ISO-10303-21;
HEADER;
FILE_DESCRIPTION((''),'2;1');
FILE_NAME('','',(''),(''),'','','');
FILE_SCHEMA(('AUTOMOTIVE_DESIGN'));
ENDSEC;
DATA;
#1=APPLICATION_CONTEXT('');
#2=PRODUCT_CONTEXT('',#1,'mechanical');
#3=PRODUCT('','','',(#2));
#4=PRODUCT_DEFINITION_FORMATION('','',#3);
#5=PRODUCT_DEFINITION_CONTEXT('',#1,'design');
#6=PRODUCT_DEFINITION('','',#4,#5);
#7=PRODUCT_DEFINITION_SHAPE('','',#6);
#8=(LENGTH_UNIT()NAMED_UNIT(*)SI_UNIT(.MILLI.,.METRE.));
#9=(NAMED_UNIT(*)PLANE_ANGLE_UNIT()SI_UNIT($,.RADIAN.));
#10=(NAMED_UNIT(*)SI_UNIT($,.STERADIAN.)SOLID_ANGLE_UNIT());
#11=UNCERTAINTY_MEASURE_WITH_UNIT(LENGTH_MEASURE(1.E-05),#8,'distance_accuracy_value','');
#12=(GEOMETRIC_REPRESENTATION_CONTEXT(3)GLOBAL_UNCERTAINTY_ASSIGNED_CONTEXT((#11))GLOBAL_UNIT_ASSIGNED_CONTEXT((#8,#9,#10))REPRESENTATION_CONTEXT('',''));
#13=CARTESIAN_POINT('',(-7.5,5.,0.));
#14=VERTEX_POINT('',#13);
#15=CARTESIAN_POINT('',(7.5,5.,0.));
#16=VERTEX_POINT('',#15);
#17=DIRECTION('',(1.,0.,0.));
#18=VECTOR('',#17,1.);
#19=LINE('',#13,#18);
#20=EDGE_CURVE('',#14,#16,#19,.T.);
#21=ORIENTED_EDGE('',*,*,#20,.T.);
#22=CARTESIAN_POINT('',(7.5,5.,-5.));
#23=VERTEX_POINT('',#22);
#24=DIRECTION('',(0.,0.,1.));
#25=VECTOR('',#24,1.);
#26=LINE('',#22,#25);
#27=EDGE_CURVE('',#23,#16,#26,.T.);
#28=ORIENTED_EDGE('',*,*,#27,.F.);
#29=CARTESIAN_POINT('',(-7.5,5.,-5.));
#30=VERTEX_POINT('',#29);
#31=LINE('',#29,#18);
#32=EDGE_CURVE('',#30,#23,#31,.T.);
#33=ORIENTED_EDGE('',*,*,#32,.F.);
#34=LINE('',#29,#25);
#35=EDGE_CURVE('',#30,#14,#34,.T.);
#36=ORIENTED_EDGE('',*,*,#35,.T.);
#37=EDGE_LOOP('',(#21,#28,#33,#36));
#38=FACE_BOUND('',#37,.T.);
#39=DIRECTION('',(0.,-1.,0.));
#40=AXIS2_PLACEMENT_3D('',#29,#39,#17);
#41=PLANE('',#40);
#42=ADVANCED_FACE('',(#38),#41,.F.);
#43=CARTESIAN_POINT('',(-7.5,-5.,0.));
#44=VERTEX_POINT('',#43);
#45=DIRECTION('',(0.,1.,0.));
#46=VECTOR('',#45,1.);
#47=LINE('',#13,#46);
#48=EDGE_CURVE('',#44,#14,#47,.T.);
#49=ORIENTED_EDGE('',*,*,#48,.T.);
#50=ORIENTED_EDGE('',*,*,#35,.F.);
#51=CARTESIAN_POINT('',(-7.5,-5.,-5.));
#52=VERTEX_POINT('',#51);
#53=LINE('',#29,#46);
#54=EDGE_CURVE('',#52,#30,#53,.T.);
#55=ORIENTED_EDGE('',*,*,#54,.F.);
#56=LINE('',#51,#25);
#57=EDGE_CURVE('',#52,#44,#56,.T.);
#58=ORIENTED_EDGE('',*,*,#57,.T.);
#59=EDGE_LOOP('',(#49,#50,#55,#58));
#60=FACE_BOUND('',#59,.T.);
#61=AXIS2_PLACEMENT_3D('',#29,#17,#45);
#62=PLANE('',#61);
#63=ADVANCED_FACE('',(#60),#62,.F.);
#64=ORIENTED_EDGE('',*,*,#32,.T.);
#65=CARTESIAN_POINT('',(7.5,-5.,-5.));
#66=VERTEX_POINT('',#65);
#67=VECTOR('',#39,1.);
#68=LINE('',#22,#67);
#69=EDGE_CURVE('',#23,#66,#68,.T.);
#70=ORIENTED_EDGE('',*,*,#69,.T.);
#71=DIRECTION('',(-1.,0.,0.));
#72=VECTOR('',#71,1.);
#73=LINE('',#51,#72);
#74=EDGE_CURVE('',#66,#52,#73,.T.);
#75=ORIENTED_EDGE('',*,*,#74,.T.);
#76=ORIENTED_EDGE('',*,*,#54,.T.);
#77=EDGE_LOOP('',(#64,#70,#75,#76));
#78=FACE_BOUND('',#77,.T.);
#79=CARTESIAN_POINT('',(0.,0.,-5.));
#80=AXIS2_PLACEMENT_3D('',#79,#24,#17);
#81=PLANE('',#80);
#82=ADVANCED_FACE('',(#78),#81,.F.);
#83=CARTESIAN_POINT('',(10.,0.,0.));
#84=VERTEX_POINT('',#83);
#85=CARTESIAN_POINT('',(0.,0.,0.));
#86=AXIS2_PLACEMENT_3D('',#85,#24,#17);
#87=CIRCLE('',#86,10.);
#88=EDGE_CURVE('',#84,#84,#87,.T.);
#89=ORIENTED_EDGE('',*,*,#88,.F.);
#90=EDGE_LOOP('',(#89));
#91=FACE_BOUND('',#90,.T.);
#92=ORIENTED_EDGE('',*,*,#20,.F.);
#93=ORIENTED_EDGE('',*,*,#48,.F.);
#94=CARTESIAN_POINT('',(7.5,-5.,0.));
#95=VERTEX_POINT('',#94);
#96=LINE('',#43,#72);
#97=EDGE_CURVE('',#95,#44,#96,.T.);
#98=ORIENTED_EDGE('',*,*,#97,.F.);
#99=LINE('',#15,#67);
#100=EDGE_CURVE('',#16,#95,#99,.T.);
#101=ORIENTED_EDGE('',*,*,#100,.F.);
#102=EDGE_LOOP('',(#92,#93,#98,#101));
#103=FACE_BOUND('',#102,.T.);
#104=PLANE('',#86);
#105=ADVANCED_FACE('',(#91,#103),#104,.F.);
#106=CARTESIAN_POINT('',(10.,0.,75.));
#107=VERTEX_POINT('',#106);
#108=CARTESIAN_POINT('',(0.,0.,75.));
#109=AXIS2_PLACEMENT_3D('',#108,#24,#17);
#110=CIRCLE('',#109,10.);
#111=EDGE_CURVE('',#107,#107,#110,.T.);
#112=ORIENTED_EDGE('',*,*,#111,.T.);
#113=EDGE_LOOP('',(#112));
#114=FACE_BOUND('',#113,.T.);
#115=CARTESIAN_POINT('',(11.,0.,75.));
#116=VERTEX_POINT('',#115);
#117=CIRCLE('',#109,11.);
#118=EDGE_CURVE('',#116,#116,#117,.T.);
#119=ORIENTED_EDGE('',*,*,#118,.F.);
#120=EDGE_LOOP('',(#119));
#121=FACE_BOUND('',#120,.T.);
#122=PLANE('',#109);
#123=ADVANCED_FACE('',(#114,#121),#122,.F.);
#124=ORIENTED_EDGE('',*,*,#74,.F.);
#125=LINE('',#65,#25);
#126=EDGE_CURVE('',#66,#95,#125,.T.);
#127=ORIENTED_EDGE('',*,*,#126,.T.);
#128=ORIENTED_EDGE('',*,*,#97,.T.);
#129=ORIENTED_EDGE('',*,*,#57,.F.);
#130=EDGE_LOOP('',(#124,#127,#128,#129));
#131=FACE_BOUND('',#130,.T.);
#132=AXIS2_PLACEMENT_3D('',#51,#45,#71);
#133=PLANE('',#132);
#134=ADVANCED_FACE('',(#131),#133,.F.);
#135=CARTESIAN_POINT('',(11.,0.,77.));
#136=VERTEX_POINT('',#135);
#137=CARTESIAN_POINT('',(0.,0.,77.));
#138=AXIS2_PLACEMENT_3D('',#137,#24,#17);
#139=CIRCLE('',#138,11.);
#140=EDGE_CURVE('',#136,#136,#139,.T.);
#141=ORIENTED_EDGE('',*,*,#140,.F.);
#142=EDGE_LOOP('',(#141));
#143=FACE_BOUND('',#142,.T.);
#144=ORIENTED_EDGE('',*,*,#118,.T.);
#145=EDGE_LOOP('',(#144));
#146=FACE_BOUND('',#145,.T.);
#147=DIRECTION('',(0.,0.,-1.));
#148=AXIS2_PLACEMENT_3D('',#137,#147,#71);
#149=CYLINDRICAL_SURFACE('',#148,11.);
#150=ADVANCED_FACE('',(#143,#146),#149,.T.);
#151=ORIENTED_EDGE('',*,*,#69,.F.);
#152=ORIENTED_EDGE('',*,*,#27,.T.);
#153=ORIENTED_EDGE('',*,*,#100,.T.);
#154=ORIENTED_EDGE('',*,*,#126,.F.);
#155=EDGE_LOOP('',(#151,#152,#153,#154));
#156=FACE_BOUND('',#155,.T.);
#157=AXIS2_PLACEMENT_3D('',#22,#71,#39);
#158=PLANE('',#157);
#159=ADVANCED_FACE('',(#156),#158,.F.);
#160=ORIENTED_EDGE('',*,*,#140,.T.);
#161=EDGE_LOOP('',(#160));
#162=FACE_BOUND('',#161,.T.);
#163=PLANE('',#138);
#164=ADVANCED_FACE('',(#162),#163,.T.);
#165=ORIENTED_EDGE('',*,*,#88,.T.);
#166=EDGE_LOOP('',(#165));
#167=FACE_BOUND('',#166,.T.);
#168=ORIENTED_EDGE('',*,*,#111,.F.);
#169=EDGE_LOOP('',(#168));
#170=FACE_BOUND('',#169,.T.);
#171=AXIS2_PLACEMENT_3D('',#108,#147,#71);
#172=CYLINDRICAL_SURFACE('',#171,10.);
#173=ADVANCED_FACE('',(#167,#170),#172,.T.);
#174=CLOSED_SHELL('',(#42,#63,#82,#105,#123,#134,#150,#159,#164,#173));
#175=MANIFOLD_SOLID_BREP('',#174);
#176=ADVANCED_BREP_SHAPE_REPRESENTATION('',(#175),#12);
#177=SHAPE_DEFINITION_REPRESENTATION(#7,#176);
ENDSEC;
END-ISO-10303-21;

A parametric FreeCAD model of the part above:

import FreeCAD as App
import Part
import Sketcher

V = App.Vector
Q = App.Units.Quantity


def add_polygon(sketch, points):
    """Adds a closed chain of lines whose ends are joined by coincident constraints."""
    first, n = sketch.GeometryCount, len(points)
    for a, b in zip(points, points[1:] + points[:1]):
        sketch.addGeometry(Part.LineSegment(App.Vector(*a, 0), App.Vector(*b, 0)), False)
    for i in range(n):
        sketch.addConstraint(Sketcher.Constraint("Coincident", first + i, 2, first + (i + 1) % n, 1))

doc = App.newDocument("Part")
body = doc.addObject("PartDesign::Body", "Body")

sketch1 = body.newObject("Sketcher::SketchObject", "Sketch")
sketch1.AttachmentSupport = (doc.getObject("XY_Plane"), [""])
sketch1.MapMode = "FlatFace"
sketch1.addGeometry(Part.Circle(V(0, 0, 0), V(0, 0, 1), 10), False)
sketch1.addConstraint([
    Sketcher.Constraint("Coincident", 0, 3, -1, 1),
    Sketcher.Constraint("Diameter", 0, Q("20 mm")),
])
pad1 = body.newObject("PartDesign::Pad", "Pad")
pad1.Profile = sketch1
pad1.Length = 75

sketch2 = body.newObject("Sketcher::SketchObject", "Sketch001")
sketch2.AttachmentSupport = (doc.getObject("XY_Plane"), [""])
sketch2.MapMode = "FlatFace"
sketch2.AttachmentOffset = App.Placement(V(0, 0, 75), App.Rotation())
sketch2.addGeometry(Part.Circle(V(0, 0, 0), V(0, 0, 1), 11), False)
sketch2.addConstraint([
    Sketcher.Constraint("Coincident", 0, 3, -1, 1),
    Sketcher.Constraint("Diameter", 0, Q("22 mm")),
])
pad2 = body.newObject("PartDesign::Pad", "Pad001")
pad2.Profile = sketch2
pad2.Length = 2

sketch3 = body.newObject("Sketcher::SketchObject", "Sketch002")
sketch3.AttachmentSupport = (doc.getObject("XY_Plane"), [""])
sketch3.MapMode = "FlatFace"
add_polygon(sketch3, [(8, 5), (8, -5), (-8, -5), (-8, 5)])
sketch3.addConstraint([
    Sketcher.Constraint("Vertical", 0),
    Sketcher.Constraint("Horizontal", 1),
    Sketcher.Constraint("Vertical", 2),
    Sketcher.Constraint("Horizontal", 3),
    Sketcher.Constraint("Symmetric", 0, 2, 2, 2, -1, 1),
    Sketcher.Constraint("DistanceX", 1, 2, 1, 1, Q("15 mm")),
    Sketcher.Constraint("DistanceY", 0, 2, 0, 1, Q("10 mm")),
])
pad3 = body.newObject("PartDesign::Pad", "Pad002")
pad3.Profile = sketch3
pad3.Length = 5
pad3.Reversed = True

doc.recompute()
